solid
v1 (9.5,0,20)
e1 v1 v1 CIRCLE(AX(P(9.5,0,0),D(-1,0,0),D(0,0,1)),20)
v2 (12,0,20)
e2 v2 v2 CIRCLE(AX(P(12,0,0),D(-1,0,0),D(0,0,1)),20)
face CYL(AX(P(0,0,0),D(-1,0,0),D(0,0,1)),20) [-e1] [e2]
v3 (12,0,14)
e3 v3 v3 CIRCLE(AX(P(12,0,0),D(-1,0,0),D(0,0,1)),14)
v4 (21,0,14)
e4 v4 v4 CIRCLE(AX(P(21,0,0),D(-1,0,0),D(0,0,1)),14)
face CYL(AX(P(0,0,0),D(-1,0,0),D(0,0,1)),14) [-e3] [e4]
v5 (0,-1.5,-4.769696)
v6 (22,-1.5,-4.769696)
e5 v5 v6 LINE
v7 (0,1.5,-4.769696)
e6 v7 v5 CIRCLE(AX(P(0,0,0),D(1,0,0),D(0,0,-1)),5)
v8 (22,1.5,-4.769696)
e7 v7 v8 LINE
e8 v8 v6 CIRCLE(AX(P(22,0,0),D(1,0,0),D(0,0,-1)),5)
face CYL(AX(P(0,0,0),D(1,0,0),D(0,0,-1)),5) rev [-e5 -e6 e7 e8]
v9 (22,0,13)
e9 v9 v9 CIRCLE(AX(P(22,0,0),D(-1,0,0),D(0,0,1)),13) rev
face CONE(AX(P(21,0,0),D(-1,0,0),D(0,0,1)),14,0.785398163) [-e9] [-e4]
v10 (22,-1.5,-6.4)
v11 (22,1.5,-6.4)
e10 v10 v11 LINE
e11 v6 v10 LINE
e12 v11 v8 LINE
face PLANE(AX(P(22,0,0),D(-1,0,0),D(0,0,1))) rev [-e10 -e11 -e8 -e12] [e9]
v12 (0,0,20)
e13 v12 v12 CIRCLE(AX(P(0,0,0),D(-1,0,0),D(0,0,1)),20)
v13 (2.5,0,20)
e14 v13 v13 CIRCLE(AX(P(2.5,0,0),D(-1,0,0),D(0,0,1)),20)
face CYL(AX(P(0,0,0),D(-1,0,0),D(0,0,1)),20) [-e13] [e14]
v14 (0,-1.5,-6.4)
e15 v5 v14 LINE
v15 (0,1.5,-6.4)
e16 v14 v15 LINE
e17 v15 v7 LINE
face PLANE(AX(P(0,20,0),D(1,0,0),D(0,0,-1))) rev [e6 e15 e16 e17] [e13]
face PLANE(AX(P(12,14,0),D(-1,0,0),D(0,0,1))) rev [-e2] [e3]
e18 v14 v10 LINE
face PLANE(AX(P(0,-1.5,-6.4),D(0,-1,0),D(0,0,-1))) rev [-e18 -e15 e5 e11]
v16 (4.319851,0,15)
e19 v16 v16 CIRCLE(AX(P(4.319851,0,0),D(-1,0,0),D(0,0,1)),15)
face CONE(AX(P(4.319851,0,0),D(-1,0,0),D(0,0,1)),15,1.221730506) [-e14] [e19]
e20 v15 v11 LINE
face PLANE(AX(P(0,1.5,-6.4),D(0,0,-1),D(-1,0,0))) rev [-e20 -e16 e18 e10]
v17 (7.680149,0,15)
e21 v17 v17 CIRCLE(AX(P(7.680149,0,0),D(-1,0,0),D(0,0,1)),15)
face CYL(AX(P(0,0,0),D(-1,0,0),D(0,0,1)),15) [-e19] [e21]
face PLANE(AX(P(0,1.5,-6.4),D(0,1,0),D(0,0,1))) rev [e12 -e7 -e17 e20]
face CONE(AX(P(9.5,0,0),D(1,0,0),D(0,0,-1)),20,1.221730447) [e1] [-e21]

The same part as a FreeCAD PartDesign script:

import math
import FreeCAD as App
import Part
import Sketcher
from FreeCAD import Vector
Q = App.Units.Quantity


def edges_at(feature, points):
    """Names of the edges that pass closest to the given points."""
    edges = feature.Shape.Edges
    near = lambda p: min(range(len(edges)), key=lambda i: edges[i].distToShape(Part.Vertex(*p))[0])
    return sorted({f"Edge{near(p) + 1}" for p in points})


def add_polygon(sketch, points):
    """Adds a closed chain of lines whose ends are joined by coincident constraints."""
    first, n = sketch.GeometryCount, len(points)
    for a, b in zip(points, points[1:] + points[:1]):
        sketch.addGeometry(Part.LineSegment(App.Vector(*a, 0), App.Vector(*b, 0)), False)
    for i in range(n):
        sketch.addConstraint(Sketcher.Constraint("Coincident", first + i, 2, first + (i + 1) % n, 1))

doc = App.newDocument("Part")
body = doc.addObject("PartDesign::Body", "Body")

# Sketch on XY plane
sketch1 = body.newObject("Sketcher::SketchObject", "Sketch")
sketch1.AttachmentSupport = (doc.getObject("XY_Plane"), [""])
sketch1.MapMode = "FlatFace"
add_polygon(sketch1, [(0, 0), (22, 0), (22, 14), (12, 14), (12, 20), (9.5, 20), (7.7, 15), (4.3, 15), (2.5, 20), (0, 20)])  # lines 0-9
sketch1.addConstraint(Sketcher.Constraint("Horizontal", 0))
sketch1.addConstraint(Sketcher.Constraint("Vertical", 1))
sketch1.addConstraint(Sketcher.Constraint("Horizontal", 2))
sketch1.addConstraint(Sketcher.Constraint("Vertical", 3))
sketch1.addConstraint(Sketcher.Constraint("Horizontal", 4))
sketch1.addConstraint(Sketcher.Constraint("Horizontal", 6))
sketch1.addConstraint(Sketcher.Constraint("Horizontal", 8))
sketch1.addConstraint(Sketcher.Constraint("Vertical", 9))
sketch1.addConstraint(Sketcher.Constraint("Coincident", 9, 2, -1, 1))
sketch1.addConstraint(Sketcher.Constraint("Horizontal", 4, 2, 7, 2))
sketch1.addConstraint(Sketcher.Constraint("Equal", 4, 8))
sketch1.addConstraint(Sketcher.Constraint("Equal", 5, 7))
sketch1.addConstraint(Sketcher.Constraint("DistanceX", 0, 1, 0, 2, 22.0))
sketch1.addConstraint(Sketcher.Constraint("DistanceX", 2, 2, 2, 1, 10.0))
sketch1.addConstraint(Sketcher.Constraint("DistanceY", 1, 1, 1, 2, 14.0))
sketch1.addConstraint(Sketcher.Constraint("DistanceY", 3, 1, 3, 2, 6.0))
sketch1.addConstraint(Sketcher.Constraint("Angle", 5, Q("-110.000002 deg")))
sketch1.addConstraint(Sketcher.Constraint("DistanceX", 4, 2, 4, 1, 2.5))
sketch1.addConstraint(Sketcher.Constraint("DistanceY", -1, 1, 5, 2, 15.0))
revolution = body.newObject("PartDesign::Revolution", "Revolution")
revolution.Profile = sketch1
revolution.ReferenceAxis = (sketch1, ["H_Axis"])
revolution.Angle = 360

# Sketch on YZ plane
sketch2 = body.newObject("Sketcher::SketchObject", "Sketch001")
sketch2.AttachmentSupport = (doc.getObject("YZ_Plane"), [""])
sketch2.MapMode = "FlatFace"
sketch2.AttachmentOffset = App.Placement(Vector(0, 0, 22), App.Rotation())
sketch2.addGeometry(Part.LineSegment(Vector(-1.5, -6.4, 0), Vector(1.5, -6.4, 0)), False)
sketch2.addGeometry(Part.LineSegment(Vector(1.5, -6.4, 0), Vector(1.5, -4.8, 0)), False)
sketch2.addGeometry(Part.ArcOfCircle(Part.Circle(Vector(0, 0, 0), Vector(0, 0, 1), 5), math.radians(-73), math.radians(253)), False)
sketch2.addGeometry(Part.LineSegment(Vector(-1.5, -4.8, 0), Vector(-1.5, -6.4, 0)), False)
sketch2.addConstraint(Sketcher.Constraint("Coincident", 0, 2, 1, 1))
sketch2.addConstraint(Sketcher.Constraint("Coincident", 1, 2, 2, 1))
sketch2.addConstraint(Sketcher.Constraint("Coincident", 2, 2, 3, 1))
sketch2.addConstraint(Sketcher.Constraint("Coincident", 3, 2, 0, 1))
sketch2.addConstraint(Sketcher.Constraint("Horizontal", 0))
sketch2.addConstraint(Sketcher.Constraint("Vertical", 1))
sketch2.addConstraint(Sketcher.Constraint("Vertical", 3))
sketch2.addConstraint(Sketcher.Constraint("Coincident", 2, 3, -1, 1))
sketch2.addConstraint(Sketcher.Constraint("Horizontal", 1, 2, 2, 2))
sketch2.addConstraint(Sketcher.Constraint("Radius", 2, 5.0))
sketch2.addConstraint(Sketcher.Constraint("DistanceX", 0, 1, 0, 2, 3.0))
sketch2.addConstraint(Sketcher.Constraint("DistanceY", 0, 2, -1, 1, 6.4))
pocket1 = body.newObject("PartDesign::Pocket", "Pocket")
pocket1.Profile = sketch2
pocket1.Type = "ThroughAll"
doc.recompute()

chamfer = body.newObject("PartDesign::Chamfer", "Chamfer")
chamfer.Base = (pocket1, edges_at(pocket1, [(22, -14, 0)]))
chamfer.Size = 1

doc.recompute()
